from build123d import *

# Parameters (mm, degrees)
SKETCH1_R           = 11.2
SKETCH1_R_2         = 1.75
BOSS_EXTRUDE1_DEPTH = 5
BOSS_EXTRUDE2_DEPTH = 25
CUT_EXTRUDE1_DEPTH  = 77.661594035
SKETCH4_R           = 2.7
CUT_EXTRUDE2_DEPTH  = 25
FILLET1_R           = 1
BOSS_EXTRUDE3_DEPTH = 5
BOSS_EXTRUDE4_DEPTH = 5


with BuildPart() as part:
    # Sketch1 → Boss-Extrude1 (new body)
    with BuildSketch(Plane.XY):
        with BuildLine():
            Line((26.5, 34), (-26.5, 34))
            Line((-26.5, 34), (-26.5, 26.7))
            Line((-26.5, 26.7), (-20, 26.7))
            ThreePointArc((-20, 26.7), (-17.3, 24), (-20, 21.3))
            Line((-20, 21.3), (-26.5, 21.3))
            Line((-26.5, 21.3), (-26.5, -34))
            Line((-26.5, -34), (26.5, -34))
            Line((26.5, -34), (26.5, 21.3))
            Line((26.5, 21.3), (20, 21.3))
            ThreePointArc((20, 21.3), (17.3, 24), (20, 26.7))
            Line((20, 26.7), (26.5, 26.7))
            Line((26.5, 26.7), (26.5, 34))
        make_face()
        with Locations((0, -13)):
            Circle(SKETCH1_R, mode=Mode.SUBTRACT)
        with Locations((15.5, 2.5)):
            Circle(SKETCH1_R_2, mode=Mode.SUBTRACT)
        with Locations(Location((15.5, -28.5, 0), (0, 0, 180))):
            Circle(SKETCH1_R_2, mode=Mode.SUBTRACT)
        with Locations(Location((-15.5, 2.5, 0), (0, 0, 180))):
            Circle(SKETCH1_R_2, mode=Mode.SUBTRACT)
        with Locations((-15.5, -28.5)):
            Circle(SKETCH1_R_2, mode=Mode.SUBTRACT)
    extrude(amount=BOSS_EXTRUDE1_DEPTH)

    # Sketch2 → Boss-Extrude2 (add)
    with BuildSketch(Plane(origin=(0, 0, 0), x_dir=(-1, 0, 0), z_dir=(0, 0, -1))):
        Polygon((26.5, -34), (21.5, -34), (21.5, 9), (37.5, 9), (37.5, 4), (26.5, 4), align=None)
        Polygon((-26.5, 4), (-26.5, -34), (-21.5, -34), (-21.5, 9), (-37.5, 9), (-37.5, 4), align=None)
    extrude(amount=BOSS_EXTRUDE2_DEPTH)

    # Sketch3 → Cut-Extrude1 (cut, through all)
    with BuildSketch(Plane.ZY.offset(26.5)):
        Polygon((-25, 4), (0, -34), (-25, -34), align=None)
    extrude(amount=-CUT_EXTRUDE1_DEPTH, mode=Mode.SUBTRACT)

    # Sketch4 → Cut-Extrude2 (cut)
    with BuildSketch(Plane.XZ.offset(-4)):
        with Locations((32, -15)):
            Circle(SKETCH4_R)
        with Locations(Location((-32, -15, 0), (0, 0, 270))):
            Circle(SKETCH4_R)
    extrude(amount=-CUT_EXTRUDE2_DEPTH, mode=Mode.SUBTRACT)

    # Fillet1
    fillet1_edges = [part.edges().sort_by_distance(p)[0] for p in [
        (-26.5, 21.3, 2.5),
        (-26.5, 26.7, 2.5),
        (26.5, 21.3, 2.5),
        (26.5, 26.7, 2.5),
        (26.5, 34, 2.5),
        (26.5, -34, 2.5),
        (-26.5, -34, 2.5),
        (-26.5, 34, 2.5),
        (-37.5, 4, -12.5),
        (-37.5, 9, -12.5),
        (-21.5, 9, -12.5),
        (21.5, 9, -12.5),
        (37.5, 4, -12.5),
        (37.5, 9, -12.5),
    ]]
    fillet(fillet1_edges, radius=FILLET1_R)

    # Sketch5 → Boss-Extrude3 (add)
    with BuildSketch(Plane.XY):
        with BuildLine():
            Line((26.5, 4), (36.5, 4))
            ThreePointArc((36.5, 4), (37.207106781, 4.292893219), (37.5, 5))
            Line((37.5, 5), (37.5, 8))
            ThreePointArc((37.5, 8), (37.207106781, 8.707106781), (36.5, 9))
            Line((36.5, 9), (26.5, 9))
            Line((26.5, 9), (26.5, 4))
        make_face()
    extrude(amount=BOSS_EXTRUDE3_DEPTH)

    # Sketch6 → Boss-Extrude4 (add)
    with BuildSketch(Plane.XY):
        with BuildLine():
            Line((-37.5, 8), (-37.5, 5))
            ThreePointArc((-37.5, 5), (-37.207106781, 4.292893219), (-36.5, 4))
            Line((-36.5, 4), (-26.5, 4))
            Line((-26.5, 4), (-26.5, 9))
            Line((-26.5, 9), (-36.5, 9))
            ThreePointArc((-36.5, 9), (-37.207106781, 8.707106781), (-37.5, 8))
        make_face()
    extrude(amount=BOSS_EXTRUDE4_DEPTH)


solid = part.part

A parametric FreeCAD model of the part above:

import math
import FreeCAD as App
import Part
import Sketcher
from FreeCAD import Vector
Q = App.Units.Quantity


def edges_at(feature, points):
    """Names of the edges that pass closest to the given points."""
    edges = feature.Shape.Edges
    near = lambda p: min(range(len(edges)), key=lambda i: edges[i].distToShape(Part.Vertex(*p))[0])
    return sorted({f"Edge{near(p) + 1}" for p in points})

doc = App.newDocument("Part")
body = doc.addObject("PartDesign::Body", "Body")

# Sketch on XY plane
sketch1 = doc.addObject("Sketcher::SketchObject", "Sketch")
body.addObject(sketch1)
sketch1.AttachmentSupport = (doc.XY_Plane, [""])
sketch1.MapMode = "FlatFace"
sketch1.addGeometry(Part.LineSegment(Vector(26.5, 34, 0), Vector(-26.5, 34, 0)), False)
sketch1.addGeometry(Part.LineSegment(Vector(-26.5, 34, 0), Vector(-26.5, 26.7, 0)), False)
sketch1.addGeometry(Part.LineSegment(Vector(-26.5, 26.7, 0), Vector(-20, 26.7, 0)), False)
sketch1.addGeometry(Part.ArcOfCircle(Part.Circle(Vector(-20, 24, 0), Vector(0, 0, 1), 2.7), math.radians(-90), math.radians(90)), False)
sketch1.addGeometry(Part.LineSegment(Vector(-20, 21.3, 0), Vector(-26.5, 21.3, 0)), False)
sketch1.addGeometry(Part.LineSegment(Vector(-26.5, 21.3, 0), Vector(-26.5, -34, 0)), False)
sketch1.addGeometry(Part.LineSegment(Vector(-26.5, -34, 0), Vector(26.5, -34, 0)), False)
sketch1.addGeometry(Part.LineSegment(Vector(26.5, -34, 0), Vector(26.5, 21.3, 0)), False)
sketch1.addGeometry(Part.LineSegment(Vector(26.5, 21.3, 0), Vector(20, 21.3, 0)), False)
sketch1.addGeometry(Part.ArcOfCircle(Part.Circle(Vector(20, 24, 0), Vector(0, 0, 1), 2.7), math.radians(90), math.radians(270)), False)
sketch1.addGeometry(Part.LineSegment(Vector(20, 26.7, 0), Vector(26.5, 26.7, 0)), False)
sketch1.addGeometry(Part.LineSegment(Vector(26.5, 26.7, 0), Vector(26.5, 34, 0)), False)
sketch1.addGeometry(Part.Circle(Vector(-15.5, -28.5, 0), Vector(0, 0, 1), 1.75), False)
sketch1.addGeometry(Part.Circle(Vector(15.5, -28.5, 0), Vector(0, 0, 1), 1.75), False)
sketch1.addGeometry(Part.Circle(Vector(-15.5, 2.5, 0), Vector(0, 0, 1), 1.75), False)
sketch1.addGeometry(Part.Circle(Vector(0, -13, 0), Vector(0, 0, 1), 11.2), False)
sketch1.addGeometry(Part.Circle(Vector(15.5, 2.5, 0), Vector(0, 0, 1), 1.75), False)
sketch1.addConstraint(Sketcher.Constraint("Coincident", 0, 2, 1, 1))
sketch1.addConstraint(Sketcher.Constraint("Coincident", 1, 2, 2, 1))
sketch1.addConstraint(Sketcher.Constraint("Tangent", 2, 2, 3, 2))
sketch1.addConstraint(Sketcher.Constraint("Tangent", 3, 1, 4, 1))
sketch1.addConstraint(Sketcher.Constraint("Coincident", 4, 2, 5, 1))
sketch1.addConstraint(Sketcher.Constraint("Coincident", 5, 2, 6, 1))
sketch1.addConstraint(Sketcher.Constraint("Coincident", 6, 2, 7, 1))
sketch1.addConstraint(Sketcher.Constraint("Coincident", 7, 2, 8, 1))
sketch1.addConstraint(Sketcher.Constraint("Tangent", 8, 2, 9, 2))
sketch1.addConstraint(Sketcher.Constraint("Tangent", 9, 1, 10, 1))
sketch1.addConstraint(Sketcher.Constraint("Coincident", 10, 2, 11, 1))
sketch1.addConstraint(Sketcher.Constraint("Coincident", 11, 2, 0, 1))
sketch1.addConstraint(Sketcher.Constraint("Horizontal", 0))
sketch1.addConstraint(Sketcher.Constraint("Vertical", 1))
sketch1.addConstraint(Sketcher.Constraint("Horizontal", 2))
sketch1.addConstraint(Sketcher.Constraint("Horizontal", 4))
sketch1.addConstraint(Sketcher.Constraint("Vertical", 5))
sketch1.addConstraint(Sketcher.Constraint("Horizontal", 6))
sketch1.addConstraint(Sketcher.Constraint("Vertical", 7))
sketch1.addConstraint(Sketcher.Constraint("Horizontal", 8))
sketch1.addConstraint(Sketcher.Constraint("Horizontal", 10))
sketch1.addConstraint(Sketcher.Constraint("Vertical", 11))
sketch1.addConstraint(Sketcher.Constraint("Equal", 3, 9))
sketch1.addConstraint(Sketcher.Constraint("Equal", 12, 13))
sketch1.addConstraint(Sketcher.Constraint("Equal", 13, 14))
sketch1.addConstraint(Sketcher.Constraint("Equal", 14, 16))
sketch1.addConstraint(Sketcher.Constraint("Symmetric", 0, 2, 6, 2, -1, 1))
sketch1.addConstraint(Sketcher.Constraint("Symmetric", 3, 3, 9, 3, -2))
sketch1.addConstraint(Sketcher.Constraint("Symmetric", 12, 3, 13, 3, -2))
sketch1.addConstraint(Sketcher.Constraint("Symmetric", 14, 3, 16, 3, -2))
sketch1.addConstraint(Sketcher.Constraint("PointOnObject", 15, 3, -2))
sketch1.addConstraint(Sketcher.Constraint("Vertical", 12, 3, 14, 3))
sketch1.addConstraint(Sketcher.Constraint("Vertical", 1, 2, 4, 2))
sketch1.addConstraint(Sketcher.Constraint("Vertical", 7, 2, 10, 2))
sketch1.addConstraint(Sketcher.Constraint("Diameter", 12, Q("3.5 mm")))
sketch1.addConstraint(Sketcher.Constraint("Diameter", 15, Q("22.4 mm")))
sketch1.addConstraint(Sketcher.Constraint("Radius", 3, Q("2.7 mm")))
sketch1.addConstraint(Sketcher.Constraint("DistanceX", 0, 2, 0, 1, Q("53 mm")))
sketch1.addConstraint(Sketcher.Constraint("DistanceX", 2, 1, 2, 2, Q("6.5 mm")))
sketch1.addConstraint(Sketcher.Constraint("DistanceY", 1, 2, 1, 1, Q("7.3 mm")))
sketch1.addConstraint(Sketcher.Constraint("DistanceY", 5, 2, 5, 1, Q("55.3 mm")))
sketch1.addConstraint(Sketcher.Constraint("DistanceY", 15, 3, -1, 1, Q("13 mm")))
sketch1.addConstraint(Sketcher.Constraint("DistanceX", 12, 3, 13, 3, Q("31 mm")))
sketch1.addConstraint(Sketcher.Constraint("DistanceY", 12, 3, 14, 3, Q("31 mm")))
sketch1.addConstraint(Sketcher.Constraint("DistanceY", 12, 3, -1, 1, Q("28.5 mm")))
pad1 = doc.addObject("PartDesign::Pad", "Pad")
body.addObject(pad1)
pad1.Profile = sketch1
pad1.Length = 5

# Sketch on XY plane
sketch2 = doc.addObject("Sketcher::SketchObject", "Sketch001")
body.addObject(sketch2)
sketch2.AttachmentSupport = (doc.XY_Plane, [""])
sketch2.MapMode = "FlatFace"
sketch2.addGeometry(Part.LineSegment(Vector(-21.5, -34, 0), Vector(-26.5, -34, 0)), False)
sketch2.addGeometry(Part.LineSegment(Vector(-26.5, -34, 0), Vector(-26.5, 4, 0)), False)
sketch2.addGeometry(Part.LineSegment(Vector(-26.5, 4, 0), Vector(-37.5, 4, 0)), False)
sketch2.addGeometry(Part.LineSegment(Vector(-37.5, 4, 0), Vector(-37.5, 9, 0)), False)
sketch2.addGeometry(Part.LineSegment(Vector(-37.5, 9, 0), Vector(-21.5, 9, 0)), False)
sketch2.addGeometry(Part.LineSegment(Vector(-21.5, 9, 0), Vector(-21.5, -34, 0)), False)
sketch2.addGeometry(Part.LineSegment(Vector(26.5, 4, 0), Vector(26.5, -34, 0)), False)
sketch2.addGeometry(Part.LineSegment(Vector(26.5, -34, 0), Vector(21.5, -34, 0)), False)
sketch2.addGeometry(Part.LineSegment(Vector(21.5, -34, 0), Vector(21.5, 9, 0)), False)
sketch2.addGeometry(Part.LineSegment(Vector(21.5, 9, 0), Vector(37.5, 9, 0)), False)
sketch2.addGeometry(Part.LineSegment(Vector(37.5, 9, 0), Vector(37.5, 4, 0)), False)
sketch2.addGeometry(Part.LineSegment(Vector(37.5, 4, 0), Vector(26.5, 4, 0)), False)
sketch2.addConstraint(Sketcher.Constraint("Coincident", 0, 2, 1, 1))
sketch2.addConstraint(Sketcher.Constraint("Coincident", 1, 2, 2, 1))
sketch2.addConstraint(Sketcher.Constraint("Coincident", 2, 2, 3, 1))
sketch2.addConstraint(Sketcher.Constraint("Coincident", 3, 2, 4, 1))
sketch2.addConstraint(Sketcher.Constraint("Coincident", 4, 2, 5, 1))
sketch2.addConstraint(Sketcher.Constraint("Coincident", 5, 2, 0, 1))
sketch2.addConstraint(Sketcher.Constraint("Coincident", 6, 2, 7, 1))
sketch2.addConstraint(Sketcher.Constraint("Coincident", 7, 2, 8, 1))
sketch2.addConstraint(Sketcher.Constraint("Coincident", 8, 2, 9, 1))
sketch2.addConstraint(Sketcher.Constraint("Coincident", 9, 2, 10, 1))
sketch2.addConstraint(Sketcher.Constraint("Coincident", 10, 2, 11, 1))
sketch2.addConstraint(Sketcher.Constraint("Coincident", 11, 2, 6, 1))
sketch2.addConstraint(Sketcher.Constraint("Horizontal", 0))
sketch2.addConstraint(Sketcher.Constraint("Vertical", 1))
sketch2.addConstraint(Sketcher.Constraint("Horizontal", 2))
sketch2.addConstraint(Sketcher.Constraint("Vertical", 3))
sketch2.addConstraint(Sketcher.Constraint("Horizontal", 4))
sketch2.addConstraint(Sketcher.Constraint("Vertical", 5))
sketch2.addConstraint(Sketcher.Constraint("Vertical", 6))
sketch2.addConstraint(Sketcher.Constraint("Horizontal", 7))
sketch2.addConstraint(Sketcher.Constraint("Vertical", 8))
sketch2.addConstraint(Sketcher.Constraint("Horizontal", 9))
sketch2.addConstraint(Sketcher.Constraint("Vertical", 10))
sketch2.addConstraint(Sketcher.Constraint("Horizontal", 11))
sketch2.addConstraint(Sketcher.Constraint("Symmetric", 0, 2, 6, 2, -2))
sketch2.addConstraint(Sketcher.Constraint("Symmetric", 4, 2, 8, 2, -2))
sketch2.addConstraint(Sketcher.Constraint("Symmetric", 2, 2, 10, 2, -2))
sketch2.addConstraint(Sketcher.Constraint("Equal", 7, 3))
sketch2.addConstraint(Sketcher.Constraint("DistanceX", 0, 2, 0, 1, Q("5 mm")))
sketch2.addConstraint(Sketcher.Constraint("DistanceX", 2, 2, 2, 1, Q("11 mm")))
sketch2.addConstraint(Sketcher.Constraint("DistanceY", 1, 1, 1, 2, Q("38 mm")))
sketch2.addConstraint(Sketcher.Constraint("DistanceY", 0, 2, -1, 1, Q("34 mm")))
sketch2.addConstraint(Sketcher.Constraint("DistanceX", 5, 2, 6, 2, Q("48 mm")))
pad2 = doc.addObject("PartDesign::Pad", "Pad001")
body.addObject(pad2)
pad2.Profile = sketch2
pad2.Length = 25
pad2.Reversed = True

# Sketch on YZ plane
sketch3 = doc.addObject("Sketcher::SketchObject", "Sketch002")
body.addObject(sketch3)
sketch3.AttachmentSupport = (doc.YZ_Plane, [""])
sketch3.MapMode = "FlatFace"
sketch3.AttachmentOffset = App.Placement(Vector(0, 0, -26.5), App.Rotation())
sketch3.addGeometry(Part.LineSegment(Vector(-34, 0, 0), Vector(4, -25, 0)), False)
sketch3.addGeometry(Part.LineSegment(Vector(4, -25, 0), Vector(-34, -25, 0)), False)
sketch3.addGeometry(Part.LineSegment(Vector(-34, -25, 0), Vector(-34, 0, 0)), False)
sketch3.addConstraint(Sketcher.Constraint("Coincident", 0, 2, 1, 1))
sketch3.addConstraint(Sketcher.Constraint("Coincident", 1, 2, 2, 1))
sketch3.addConstraint(Sketcher.Constraint("Coincident", 2, 2, 0, 1))
sketch3.addConstraint(Sketcher.Constraint("Horizontal", 1))
sketch3.addConstraint(Sketcher.Constraint("Vertical", 2))
sketch3.addConstraint(Sketcher.Constraint("PointOnObject", 2, 2, -1))
sketch3.addConstraint(Sketcher.Constraint("DistanceX", 1, 2, 1, 1, Q("38 mm")))
sketch3.addConstraint(Sketcher.Constraint("DistanceY", 2, 1, 2, 2, Q("25 mm")))
sketch3.addConstraint(Sketcher.Constraint("DistanceX", -1, 1, 0, 2, Q("4 mm")))
pocket1 = doc.addObject("PartDesign::Pocket", "Pocket")
body.addObject(pocket1)
pocket1.Profile = sketch3
pocket1.Type = "ThroughAll"
pocket1.Reversed = True

# Sketch on XZ plane
sketch4 = doc.addObject("Sketcher::SketchObject", "Sketch003")
body.addObject(sketch4)
sketch4.AttachmentSupport = (doc.XZ_Plane, [""])
sketch4.MapMode = "FlatFace"
sketch4.AttachmentOffset = App.Placement(Vector(0, 0, -4), App.Rotation())
sketch4.addGeometry(Part.Circle(Vector(32, -15, 0), Vector(0, 0, 1), 2.7), False)
sketch4.addGeometry(Part.Circle(Vector(-32, -15, 0), Vector(0, 0, 1), 2.7), False)
sketch4.addConstraint(Sketcher.Constraint("Equal", 0, 1))
sketch4.addConstraint(Sketcher.Constraint("Symmetric", 0, 3, 1, 3, -2))
sketch4.addConstraint(Sketcher.Constraint("Diameter", 0, Q("5.4 mm")))
sketch4.addConstraint(Sketcher.Constraint("DistanceX", -1, 1, 0, 3, Q("32 mm")))
sketch4.addConstraint(Sketcher.Constraint("DistanceY", 0, 3, -1, 1, Q("15 mm")))
pocket2 = doc.addObject("PartDesign::Pocket", "Pocket001")
body.addObject(pocket2)
pocket2.Profile = sketch4
pocket2.Length = 25
doc.recompute()

fillet = doc.addObject("PartDesign::Fillet", "Fillet")
body.addObject(fillet)
fillet.Base = (pocket2, edges_at(pocket2, [
    (-26.5, 21.3, 2.5),
    (-26.5, 26.7, 2.5),
    (26.5, 21.3, 2.5),
    (26.5, 26.7, 2.5),
    (26.5, 34, 2.5),
    (26.5, -34, 2.5),
    (-26.5, -34, 2.5),
    (-26.5, 34, 2.5),
    (-37.5, 4, -12.5),
    (-37.5, 9, -12.5),
    (-21.5, 9, -12.5),
    (21.5, 9, -12.5),
    (37.5, 4, -12.5),
    (37.5, 9, -12.5),
]))
fillet.Radius = 1

# Sketch on XY plane
sketch5 = doc.addObject("Sketcher::SketchObject", "Sketch004")
body.addObject(sketch5)
sketch5.AttachmentSupport = (doc.XY_Plane, [""])
sketch5.MapMode = "FlatFace"
sketch5.addGeometry(Part.LineSegment(Vector(26.5, 4, 0), Vector(36.5, 4, 0)), False)
sketch5.addGeometry(Part.ArcOfCircle(Part.Circle(Vector(36.5, 5, 0), Vector(0, 0, 1), 1), math.radians(-90), math.radians(0)), False)
sketch5.addGeometry(Part.LineSegment(Vector(37.5, 5, 0), Vector(37.5, 8, 0)), False)
sketch5.addGeometry(Part.ArcOfCircle(Part.Circle(Vector(36.5, 8, 0), Vector(0, 0, 1), 1), math.radians(0), math.radians(90)), False)
sketch5.addGeometry(Part.LineSegment(Vector(36.5, 9, 0), Vector(26.5, 9, 0)), False)
sketch5.addGeometry(Part.LineSegment(Vector(26.5, 9, 0), Vector(26.5, 4, 0)), False)
sketch5.addConstraint(Sketcher.Constraint("Tangent", 0, 2, 1, 1))
sketch5.addConstraint(Sketcher.Constraint("Tangent", 1, 2, 2, 1))
sketch5.addConstraint(Sketcher.Constraint("Tangent", 2, 2, 3, 1))
sketch5.addConstraint(Sketcher.Constraint("Tangent", 3, 2, 4, 1))
sketch5.addConstraint(Sketcher.Constraint("Coincident", 4, 2, 5, 1))
sketch5.addConstraint(Sketcher.Constraint("Coincident", 5, 2, 0, 1))
sketch5.addConstraint(Sketcher.Constraint("Horizontal", 0))
sketch5.addConstraint(Sketcher.Constraint("Vertical", 2))
sketch5.addConstraint(Sketcher.Constraint("Horizontal", 4))
sketch5.addConstraint(Sketcher.Constraint("Vertical", 5))
sketch5.addConstraint(Sketcher.Constraint("Equal", 1, 3))
sketch5.addConstraint(Sketcher.Constraint("Radius", 1, Q("1 mm")))
sketch5.addConstraint(Sketcher.Constraint("DistanceX", 0, 1, 0, 2, Q("10 mm")))
sketch5.addConstraint(Sketcher.Constraint("DistanceY", 2, 1, 2, 2, Q("3 mm")))
sketch5.addConstraint(Sketcher.Constraint("DistanceY", -1, 1, 1, 3, Q("5 mm")))
sketch5.addConstraint(Sketcher.Constraint("DistanceX", -1, 1, 1, 3, Q("36.5 mm")))
pad3 = doc.addObject("PartDesign::Pad", "Pad002")
body.addObject(pad3)
pad3.Profile = sketch5
pad3.Length = 5

# Sketch on XY plane
sketch6 = doc.addObject("Sketcher::SketchObject", "Sketch005")
body.addObject(sketch6)
sketch6.AttachmentSupport = (doc.XY_Plane, [""])
sketch6.MapMode = "FlatFace"
sketch6.addGeometry(Part.LineSegment(Vector(-37.5, 8, 0), Vector(-37.5, 5, 0)), False)
sketch6.addGeometry(Part.ArcOfCircle(Part.Circle(Vector(-36.5, 5, 0), Vector(0, 0, 1), 1), math.radians(-180), math.radians(-90)), False)
sketch6.addGeometry(Part.LineSegment(Vector(-36.5, 4, 0), Vector(-26.5, 4, 0)), False)
sketch6.addGeometry(Part.LineSegment(Vector(-26.5, 4, 0), Vector(-26.5, 9, 0)), False)
sketch6.addGeometry(Part.LineSegment(Vector(-26.5, 9, 0), Vector(-36.5, 9, 0)), False)
sketch6.addGeometry(Part.ArcOfCircle(Part.Circle(Vector(-36.5, 8, 0), Vector(0, 0, 1), 1), math.radians(90), math.radians(180)), False)
sketch6.addConstraint(Sketcher.Constraint("Tangent", 0, 2, 1, 1))
sketch6.addConstraint(Sketcher.Constraint("Tangent", 1, 2, 2, 1))
sketch6.addConstraint(Sketcher.Constraint("Coincident", 2, 2, 3, 1))
sketch6.addConstraint(Sketcher.Constraint("Coincident", 3, 2, 4, 1))
sketch6.addConstraint(Sketcher.Constraint("Tangent", 4, 2, 5, 1))
sketch6.addConstraint(Sketcher.Constraint("Tangent", 5, 2, 0, 1))
sketch6.addConstraint(Sketcher.Constraint("Vertical", 0))
sketch6.addConstraint(Sketcher.Constraint("Horizontal", 2))
sketch6.addConstraint(Sketcher.Constraint("Vertical", 3))
sketch6.addConstraint(Sketcher.Constraint("Horizontal", 4))
sketch6.addConstraint(Sketcher.Constraint("Equal", 1, 5))
sketch6.addConstraint(Sketcher.Constraint("Radius", 1, Q("1 mm")))
sketch6.addConstraint(Sketcher.Constraint("DistanceX", 2, 1, 2, 2, Q("10 mm")))
sketch6.addConstraint(Sketcher.Constraint("DistanceY", 0, 2, 0, 1, Q("3 mm")))
sketch6.addConstraint(Sketcher.Constraint("DistanceY", -1, 1, 1, 3, Q("5 mm")))
sketch6.addConstraint(Sketcher.Constraint("DistanceX", 1, 3, -1, 1, Q("36.5 mm")))
pad4 = doc.addObject("PartDesign::Pad", "Pad003")
body.addObject(pad4)
pad4.Profile = sketch6
pad4.Length = 5

doc.recompute()
